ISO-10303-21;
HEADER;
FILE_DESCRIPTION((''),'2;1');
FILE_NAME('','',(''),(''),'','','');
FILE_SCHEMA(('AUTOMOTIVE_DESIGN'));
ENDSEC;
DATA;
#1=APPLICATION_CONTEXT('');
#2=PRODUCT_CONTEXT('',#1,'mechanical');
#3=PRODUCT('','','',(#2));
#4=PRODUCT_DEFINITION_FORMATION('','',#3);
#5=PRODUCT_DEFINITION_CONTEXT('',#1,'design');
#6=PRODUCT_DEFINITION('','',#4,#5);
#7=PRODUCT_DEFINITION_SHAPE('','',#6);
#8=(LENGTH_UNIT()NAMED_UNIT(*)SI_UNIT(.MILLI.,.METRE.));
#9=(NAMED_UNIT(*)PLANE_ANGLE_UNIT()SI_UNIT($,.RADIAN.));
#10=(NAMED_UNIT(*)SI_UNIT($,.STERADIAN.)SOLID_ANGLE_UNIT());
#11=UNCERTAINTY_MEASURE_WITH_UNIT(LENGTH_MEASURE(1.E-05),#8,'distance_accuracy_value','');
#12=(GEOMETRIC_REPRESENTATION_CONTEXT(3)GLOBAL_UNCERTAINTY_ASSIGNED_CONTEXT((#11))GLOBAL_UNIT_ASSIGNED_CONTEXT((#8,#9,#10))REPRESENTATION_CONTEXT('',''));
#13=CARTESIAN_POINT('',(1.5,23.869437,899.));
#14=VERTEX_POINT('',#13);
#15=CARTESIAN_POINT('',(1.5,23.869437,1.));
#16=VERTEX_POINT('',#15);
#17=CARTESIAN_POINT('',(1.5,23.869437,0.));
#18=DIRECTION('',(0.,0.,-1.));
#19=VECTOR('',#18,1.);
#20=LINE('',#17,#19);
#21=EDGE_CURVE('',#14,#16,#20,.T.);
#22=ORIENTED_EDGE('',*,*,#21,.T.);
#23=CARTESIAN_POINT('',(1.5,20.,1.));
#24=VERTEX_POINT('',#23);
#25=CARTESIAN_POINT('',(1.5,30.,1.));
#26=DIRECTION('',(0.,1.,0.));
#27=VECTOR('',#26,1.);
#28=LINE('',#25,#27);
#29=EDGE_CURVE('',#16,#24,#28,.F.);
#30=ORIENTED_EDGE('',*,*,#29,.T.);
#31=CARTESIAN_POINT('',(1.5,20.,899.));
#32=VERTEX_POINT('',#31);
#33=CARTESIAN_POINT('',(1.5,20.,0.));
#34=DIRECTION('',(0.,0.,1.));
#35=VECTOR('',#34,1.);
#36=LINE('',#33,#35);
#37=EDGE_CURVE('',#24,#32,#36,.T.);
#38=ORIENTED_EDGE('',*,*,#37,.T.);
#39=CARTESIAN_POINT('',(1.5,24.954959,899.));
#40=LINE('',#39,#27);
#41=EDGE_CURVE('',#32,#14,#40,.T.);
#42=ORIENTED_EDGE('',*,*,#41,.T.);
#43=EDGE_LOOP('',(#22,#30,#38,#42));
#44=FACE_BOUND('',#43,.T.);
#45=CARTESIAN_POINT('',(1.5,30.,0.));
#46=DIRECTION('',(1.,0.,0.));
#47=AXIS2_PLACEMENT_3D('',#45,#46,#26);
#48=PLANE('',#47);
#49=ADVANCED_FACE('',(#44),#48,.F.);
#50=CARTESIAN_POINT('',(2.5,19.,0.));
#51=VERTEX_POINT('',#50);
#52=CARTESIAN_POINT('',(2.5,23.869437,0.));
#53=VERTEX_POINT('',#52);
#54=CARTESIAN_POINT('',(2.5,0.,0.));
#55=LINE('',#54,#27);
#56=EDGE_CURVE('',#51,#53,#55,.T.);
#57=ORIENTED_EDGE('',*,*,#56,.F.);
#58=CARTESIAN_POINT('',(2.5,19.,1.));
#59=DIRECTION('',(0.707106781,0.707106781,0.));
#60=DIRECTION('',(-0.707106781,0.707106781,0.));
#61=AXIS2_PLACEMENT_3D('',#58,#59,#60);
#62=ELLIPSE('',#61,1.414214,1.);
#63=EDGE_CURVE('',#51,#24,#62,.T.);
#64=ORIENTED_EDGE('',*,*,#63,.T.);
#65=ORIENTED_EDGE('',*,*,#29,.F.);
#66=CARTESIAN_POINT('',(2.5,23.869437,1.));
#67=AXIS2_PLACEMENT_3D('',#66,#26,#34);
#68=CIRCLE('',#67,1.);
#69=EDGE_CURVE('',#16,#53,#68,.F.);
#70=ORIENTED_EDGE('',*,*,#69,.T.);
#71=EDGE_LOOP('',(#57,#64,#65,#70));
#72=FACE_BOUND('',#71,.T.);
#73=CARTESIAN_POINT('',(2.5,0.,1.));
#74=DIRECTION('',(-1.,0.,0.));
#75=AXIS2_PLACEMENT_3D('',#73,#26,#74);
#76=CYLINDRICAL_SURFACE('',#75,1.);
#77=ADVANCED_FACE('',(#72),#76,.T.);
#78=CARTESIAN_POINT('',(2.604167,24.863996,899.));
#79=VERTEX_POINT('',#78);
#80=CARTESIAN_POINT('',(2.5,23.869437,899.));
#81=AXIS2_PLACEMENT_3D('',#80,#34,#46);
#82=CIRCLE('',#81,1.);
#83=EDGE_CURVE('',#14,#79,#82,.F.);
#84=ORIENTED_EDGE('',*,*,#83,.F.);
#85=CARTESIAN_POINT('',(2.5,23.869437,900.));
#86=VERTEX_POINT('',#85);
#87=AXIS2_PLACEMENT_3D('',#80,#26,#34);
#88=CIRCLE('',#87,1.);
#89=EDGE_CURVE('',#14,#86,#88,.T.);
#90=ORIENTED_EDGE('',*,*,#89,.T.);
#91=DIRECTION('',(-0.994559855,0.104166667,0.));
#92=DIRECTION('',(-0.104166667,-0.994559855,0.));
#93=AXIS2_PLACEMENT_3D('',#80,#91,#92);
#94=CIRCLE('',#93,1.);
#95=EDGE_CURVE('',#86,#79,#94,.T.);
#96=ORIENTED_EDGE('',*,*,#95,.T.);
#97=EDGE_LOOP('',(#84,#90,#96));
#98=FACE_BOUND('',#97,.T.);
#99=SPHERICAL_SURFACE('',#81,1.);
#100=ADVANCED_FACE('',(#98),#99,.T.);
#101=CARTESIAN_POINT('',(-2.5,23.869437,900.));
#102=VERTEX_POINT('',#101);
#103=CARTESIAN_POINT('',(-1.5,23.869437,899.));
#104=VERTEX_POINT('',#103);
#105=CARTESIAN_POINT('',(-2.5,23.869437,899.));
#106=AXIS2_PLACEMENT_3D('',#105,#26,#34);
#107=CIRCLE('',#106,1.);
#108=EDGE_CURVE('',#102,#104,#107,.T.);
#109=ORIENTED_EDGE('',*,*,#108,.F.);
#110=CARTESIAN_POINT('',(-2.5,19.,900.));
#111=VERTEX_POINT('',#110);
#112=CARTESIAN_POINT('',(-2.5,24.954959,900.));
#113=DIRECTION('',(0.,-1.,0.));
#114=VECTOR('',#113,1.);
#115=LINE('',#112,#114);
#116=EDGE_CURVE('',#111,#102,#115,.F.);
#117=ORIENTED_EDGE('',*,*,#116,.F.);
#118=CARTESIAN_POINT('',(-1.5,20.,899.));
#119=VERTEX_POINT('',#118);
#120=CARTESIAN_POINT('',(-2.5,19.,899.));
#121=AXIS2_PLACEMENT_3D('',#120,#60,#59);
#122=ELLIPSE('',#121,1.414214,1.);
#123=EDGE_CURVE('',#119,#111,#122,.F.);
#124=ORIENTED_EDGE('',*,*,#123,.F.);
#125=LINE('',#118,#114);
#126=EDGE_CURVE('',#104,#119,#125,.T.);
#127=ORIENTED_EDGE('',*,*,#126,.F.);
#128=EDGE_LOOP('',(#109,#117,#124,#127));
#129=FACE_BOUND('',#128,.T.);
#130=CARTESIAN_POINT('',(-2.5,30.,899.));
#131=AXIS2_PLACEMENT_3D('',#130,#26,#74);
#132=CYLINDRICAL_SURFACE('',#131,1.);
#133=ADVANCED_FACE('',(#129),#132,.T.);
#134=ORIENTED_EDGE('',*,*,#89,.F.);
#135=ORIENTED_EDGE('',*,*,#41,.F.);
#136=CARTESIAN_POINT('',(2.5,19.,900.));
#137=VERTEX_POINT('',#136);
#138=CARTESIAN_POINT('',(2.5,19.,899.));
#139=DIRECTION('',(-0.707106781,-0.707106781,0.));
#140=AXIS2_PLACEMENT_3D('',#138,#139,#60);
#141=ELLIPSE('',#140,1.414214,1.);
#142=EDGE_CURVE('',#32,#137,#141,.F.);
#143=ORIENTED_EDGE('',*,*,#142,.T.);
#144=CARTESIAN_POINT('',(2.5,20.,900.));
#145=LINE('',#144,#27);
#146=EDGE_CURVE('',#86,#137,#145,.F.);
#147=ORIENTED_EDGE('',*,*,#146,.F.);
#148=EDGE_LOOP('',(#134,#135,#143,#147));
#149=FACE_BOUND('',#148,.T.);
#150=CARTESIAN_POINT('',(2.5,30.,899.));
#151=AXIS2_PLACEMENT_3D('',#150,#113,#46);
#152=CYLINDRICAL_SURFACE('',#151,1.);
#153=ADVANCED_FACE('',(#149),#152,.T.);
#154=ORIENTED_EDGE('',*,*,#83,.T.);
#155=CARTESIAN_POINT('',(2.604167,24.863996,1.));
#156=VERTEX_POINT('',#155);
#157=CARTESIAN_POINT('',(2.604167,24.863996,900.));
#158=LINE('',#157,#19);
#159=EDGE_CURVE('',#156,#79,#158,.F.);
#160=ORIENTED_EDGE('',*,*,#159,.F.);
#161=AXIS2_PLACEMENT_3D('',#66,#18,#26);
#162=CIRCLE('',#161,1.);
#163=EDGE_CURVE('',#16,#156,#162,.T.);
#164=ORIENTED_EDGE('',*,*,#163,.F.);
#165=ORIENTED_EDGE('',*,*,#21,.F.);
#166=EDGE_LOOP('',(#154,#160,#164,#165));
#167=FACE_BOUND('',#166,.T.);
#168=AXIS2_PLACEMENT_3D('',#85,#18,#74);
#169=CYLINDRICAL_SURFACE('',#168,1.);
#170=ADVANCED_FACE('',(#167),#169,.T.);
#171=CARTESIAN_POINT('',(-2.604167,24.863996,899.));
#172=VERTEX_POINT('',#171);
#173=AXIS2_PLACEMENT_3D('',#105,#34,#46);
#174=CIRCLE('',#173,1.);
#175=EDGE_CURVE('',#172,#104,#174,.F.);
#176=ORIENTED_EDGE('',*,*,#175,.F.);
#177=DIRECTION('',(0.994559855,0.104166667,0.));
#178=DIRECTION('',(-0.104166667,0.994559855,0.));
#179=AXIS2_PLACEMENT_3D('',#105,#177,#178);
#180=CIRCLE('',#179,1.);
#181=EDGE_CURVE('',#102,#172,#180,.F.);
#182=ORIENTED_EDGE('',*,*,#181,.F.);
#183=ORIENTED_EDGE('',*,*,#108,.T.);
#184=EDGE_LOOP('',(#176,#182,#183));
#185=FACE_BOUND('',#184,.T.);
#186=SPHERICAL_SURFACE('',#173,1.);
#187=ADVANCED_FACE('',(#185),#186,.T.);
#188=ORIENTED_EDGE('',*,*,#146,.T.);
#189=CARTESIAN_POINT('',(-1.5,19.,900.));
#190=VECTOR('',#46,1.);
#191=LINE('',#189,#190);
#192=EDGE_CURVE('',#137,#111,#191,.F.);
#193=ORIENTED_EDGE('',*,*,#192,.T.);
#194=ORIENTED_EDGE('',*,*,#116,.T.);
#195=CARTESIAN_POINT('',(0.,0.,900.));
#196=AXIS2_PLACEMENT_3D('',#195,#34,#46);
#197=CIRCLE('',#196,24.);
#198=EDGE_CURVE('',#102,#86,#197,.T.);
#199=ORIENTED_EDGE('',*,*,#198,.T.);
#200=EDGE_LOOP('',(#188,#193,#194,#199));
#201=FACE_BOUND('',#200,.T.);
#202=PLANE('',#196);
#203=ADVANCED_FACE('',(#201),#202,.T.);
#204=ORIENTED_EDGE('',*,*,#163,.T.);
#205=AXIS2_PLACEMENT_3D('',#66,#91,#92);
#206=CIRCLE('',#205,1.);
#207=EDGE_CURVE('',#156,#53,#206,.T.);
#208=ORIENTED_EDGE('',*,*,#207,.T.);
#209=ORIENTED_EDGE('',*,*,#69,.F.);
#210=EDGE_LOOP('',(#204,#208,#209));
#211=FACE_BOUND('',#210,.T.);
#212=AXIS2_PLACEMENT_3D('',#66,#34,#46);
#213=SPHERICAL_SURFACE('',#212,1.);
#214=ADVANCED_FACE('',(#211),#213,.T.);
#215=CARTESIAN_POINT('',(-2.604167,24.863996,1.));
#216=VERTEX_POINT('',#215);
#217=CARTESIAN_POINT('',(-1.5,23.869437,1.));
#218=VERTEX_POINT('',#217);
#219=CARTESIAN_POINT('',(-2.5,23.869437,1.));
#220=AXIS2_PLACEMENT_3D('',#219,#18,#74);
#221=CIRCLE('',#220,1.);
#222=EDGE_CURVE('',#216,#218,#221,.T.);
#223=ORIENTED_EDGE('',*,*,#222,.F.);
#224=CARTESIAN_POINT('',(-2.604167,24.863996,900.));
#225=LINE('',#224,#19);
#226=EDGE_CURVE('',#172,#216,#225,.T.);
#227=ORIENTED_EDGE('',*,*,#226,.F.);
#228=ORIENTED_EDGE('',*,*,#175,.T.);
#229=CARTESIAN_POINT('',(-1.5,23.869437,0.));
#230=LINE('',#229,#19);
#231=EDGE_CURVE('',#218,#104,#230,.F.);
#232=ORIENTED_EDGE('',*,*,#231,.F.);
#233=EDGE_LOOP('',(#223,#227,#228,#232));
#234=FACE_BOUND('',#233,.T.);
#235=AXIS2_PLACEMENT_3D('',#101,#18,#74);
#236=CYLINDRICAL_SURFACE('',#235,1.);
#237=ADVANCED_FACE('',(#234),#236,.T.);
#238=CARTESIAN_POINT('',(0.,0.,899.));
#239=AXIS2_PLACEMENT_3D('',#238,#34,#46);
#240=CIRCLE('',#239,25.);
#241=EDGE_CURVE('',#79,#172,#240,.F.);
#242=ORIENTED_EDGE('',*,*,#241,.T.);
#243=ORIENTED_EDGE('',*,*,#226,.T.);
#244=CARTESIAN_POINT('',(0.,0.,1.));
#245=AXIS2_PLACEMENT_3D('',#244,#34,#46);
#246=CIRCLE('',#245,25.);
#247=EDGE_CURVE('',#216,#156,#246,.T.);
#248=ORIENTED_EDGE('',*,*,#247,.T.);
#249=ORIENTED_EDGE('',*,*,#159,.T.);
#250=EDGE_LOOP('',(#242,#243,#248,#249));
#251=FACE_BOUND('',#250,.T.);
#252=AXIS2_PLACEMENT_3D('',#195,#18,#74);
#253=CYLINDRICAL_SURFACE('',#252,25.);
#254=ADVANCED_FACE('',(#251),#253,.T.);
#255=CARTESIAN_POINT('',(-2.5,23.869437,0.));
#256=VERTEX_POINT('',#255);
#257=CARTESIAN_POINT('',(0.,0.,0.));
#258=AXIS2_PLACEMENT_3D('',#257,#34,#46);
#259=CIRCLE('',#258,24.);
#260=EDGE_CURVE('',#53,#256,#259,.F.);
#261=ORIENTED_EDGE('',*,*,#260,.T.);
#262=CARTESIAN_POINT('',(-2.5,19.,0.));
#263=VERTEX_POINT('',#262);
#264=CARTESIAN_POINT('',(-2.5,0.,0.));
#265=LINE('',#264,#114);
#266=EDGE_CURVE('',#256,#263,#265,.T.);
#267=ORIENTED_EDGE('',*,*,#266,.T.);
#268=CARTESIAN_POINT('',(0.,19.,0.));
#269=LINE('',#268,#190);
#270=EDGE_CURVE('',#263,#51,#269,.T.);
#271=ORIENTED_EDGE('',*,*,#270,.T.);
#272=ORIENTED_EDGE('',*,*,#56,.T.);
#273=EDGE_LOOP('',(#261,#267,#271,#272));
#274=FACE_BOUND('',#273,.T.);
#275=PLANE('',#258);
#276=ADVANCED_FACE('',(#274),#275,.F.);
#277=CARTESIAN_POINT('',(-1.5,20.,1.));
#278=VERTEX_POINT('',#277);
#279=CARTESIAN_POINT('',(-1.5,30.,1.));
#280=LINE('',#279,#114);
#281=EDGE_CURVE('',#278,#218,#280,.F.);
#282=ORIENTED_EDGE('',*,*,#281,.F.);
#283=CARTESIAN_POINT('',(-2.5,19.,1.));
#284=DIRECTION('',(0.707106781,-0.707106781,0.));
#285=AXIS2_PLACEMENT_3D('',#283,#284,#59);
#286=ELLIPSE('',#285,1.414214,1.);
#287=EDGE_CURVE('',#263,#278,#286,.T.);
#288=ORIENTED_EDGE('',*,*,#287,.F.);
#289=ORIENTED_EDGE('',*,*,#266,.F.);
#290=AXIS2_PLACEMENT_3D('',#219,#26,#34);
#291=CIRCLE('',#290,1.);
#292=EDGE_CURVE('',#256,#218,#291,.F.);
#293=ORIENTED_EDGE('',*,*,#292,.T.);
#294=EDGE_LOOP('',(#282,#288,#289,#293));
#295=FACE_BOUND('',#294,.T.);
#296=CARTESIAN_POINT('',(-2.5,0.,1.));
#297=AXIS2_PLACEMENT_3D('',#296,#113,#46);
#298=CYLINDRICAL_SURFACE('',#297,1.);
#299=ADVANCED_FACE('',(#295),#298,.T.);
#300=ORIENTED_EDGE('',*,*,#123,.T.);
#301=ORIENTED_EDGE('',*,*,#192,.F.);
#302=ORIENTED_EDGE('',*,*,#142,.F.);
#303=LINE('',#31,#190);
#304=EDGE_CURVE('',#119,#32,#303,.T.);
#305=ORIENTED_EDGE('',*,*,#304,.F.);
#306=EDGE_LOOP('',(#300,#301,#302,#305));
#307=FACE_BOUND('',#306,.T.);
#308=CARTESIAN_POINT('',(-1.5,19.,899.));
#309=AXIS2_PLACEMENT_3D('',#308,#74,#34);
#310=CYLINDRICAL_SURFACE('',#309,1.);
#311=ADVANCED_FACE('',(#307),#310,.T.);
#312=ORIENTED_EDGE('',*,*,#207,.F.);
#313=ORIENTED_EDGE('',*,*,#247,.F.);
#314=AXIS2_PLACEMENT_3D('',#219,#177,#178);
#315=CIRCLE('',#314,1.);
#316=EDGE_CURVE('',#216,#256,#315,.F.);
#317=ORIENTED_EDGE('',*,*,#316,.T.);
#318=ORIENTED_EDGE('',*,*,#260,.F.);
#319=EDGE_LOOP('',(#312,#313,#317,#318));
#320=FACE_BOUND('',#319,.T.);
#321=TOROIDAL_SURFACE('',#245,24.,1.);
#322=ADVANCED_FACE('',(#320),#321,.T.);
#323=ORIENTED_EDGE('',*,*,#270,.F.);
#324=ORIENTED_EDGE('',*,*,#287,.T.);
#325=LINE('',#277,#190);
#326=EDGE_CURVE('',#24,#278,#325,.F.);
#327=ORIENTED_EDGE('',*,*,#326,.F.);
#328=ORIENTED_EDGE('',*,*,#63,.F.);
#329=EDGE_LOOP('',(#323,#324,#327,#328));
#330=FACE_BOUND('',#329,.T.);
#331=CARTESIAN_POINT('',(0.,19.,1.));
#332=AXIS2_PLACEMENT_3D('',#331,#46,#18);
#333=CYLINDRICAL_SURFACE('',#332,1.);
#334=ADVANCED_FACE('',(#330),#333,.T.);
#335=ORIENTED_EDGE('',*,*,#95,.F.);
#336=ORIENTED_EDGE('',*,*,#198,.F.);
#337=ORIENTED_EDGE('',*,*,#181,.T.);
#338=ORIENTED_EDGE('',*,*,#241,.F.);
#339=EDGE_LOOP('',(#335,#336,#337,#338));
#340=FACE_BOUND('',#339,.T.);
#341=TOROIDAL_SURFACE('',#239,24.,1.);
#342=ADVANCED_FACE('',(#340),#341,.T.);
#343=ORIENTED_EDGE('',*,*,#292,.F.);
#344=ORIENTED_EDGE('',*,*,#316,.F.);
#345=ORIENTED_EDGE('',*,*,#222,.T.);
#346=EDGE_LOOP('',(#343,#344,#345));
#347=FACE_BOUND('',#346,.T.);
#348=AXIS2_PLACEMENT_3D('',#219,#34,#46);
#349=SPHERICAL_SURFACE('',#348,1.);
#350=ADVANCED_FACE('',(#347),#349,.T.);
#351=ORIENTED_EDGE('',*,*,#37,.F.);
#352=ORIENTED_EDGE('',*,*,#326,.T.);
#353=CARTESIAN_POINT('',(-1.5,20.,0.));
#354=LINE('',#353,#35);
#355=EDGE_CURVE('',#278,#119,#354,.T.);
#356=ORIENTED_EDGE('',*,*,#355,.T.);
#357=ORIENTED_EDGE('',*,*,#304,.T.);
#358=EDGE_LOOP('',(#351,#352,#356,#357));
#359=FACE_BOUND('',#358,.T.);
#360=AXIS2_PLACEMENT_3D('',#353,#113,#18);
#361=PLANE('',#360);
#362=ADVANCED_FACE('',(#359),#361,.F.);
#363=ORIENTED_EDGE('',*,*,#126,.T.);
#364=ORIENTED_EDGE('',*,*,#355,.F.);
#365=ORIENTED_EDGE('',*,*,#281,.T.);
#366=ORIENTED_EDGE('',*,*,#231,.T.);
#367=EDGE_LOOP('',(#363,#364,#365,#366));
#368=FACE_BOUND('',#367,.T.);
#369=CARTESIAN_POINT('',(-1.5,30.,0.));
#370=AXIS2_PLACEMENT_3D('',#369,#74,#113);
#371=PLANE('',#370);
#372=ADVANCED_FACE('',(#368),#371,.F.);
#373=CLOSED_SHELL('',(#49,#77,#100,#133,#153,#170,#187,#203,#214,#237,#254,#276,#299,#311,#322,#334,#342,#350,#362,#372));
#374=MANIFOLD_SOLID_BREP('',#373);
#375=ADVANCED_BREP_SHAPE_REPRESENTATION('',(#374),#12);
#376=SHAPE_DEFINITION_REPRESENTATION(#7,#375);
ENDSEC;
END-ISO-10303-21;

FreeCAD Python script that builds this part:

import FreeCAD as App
import Part
import Sketcher

V = App.Vector
Q = App.Units.Quantity


def edges_at(feature, points):
    """Names of the edges that pass closest to the given points."""
    edges = feature.Shape.Edges
    near = lambda p: min(range(len(edges)), key=lambda i: edges[i].distToShape(Part.Vertex(*p))[0])
    return sorted({f"Edge{near(p) + 1}" for p in points})

doc = App.newDocument("Part")
body = doc.addObject("PartDesign::Body", "Body")

sketch1 = body.newObject("Sketcher::SketchObject", "Sketch")
sketch1.AttachmentSupport = (doc.getObject("XY_Plane"), [""])
sketch1.MapMode = "FlatFace"
sketch1.addGeometry(Part.Circle(V(0, 0, 0), V(0, 0, 1), 25), False)
sketch1.addConstraint([
    Sketcher.Constraint("Coincident", 0, 3, -1, 1),
    Sketcher.Constraint("Diameter", 0, Q("50 mm")),
])
pad1 = body.newObject("PartDesign::Pad", "Pad")
pad1.Profile = sketch1
pad1.Length = 900

sketch2 = body.newObject("Sketcher::SketchObject", "Sketch001")
sketch2.AttachmentSupport = (doc.getObject("XY_Plane"), [""])
sketch2.MapMode = "FlatFace"
sketch2.AttachmentOffset = App.Placement(V(0, 0, 900), App.Rotation())
sketch2.addGeometry([
    Part.LineSegment(V(-1.5, 30, 0), V(-1.5, 20, 0)),
    Part.LineSegment(V(-1.5, 20, 0), V(1.5, 20, 0)),
    Part.LineSegment(V(1.5, 20, 0), V(1.5, 30, 0)),
    Part.LineSegment(V(1.5, 30, 0), V(-1.5, 30, 0)),
], False)
sketch2.addConstraint([
    Sketcher.Constraint("Coincident", 0, 2, 1, 1),
    Sketcher.Constraint("Coincident", 1, 2, 2, 1),
    Sketcher.Constraint("Coincident", 2, 2, 3, 1),
    Sketcher.Constraint("Coincident", 3, 2, 0, 1),
    Sketcher.Constraint("Vertical", 0),
    Sketcher.Constraint("Horizontal", 1),
    Sketcher.Constraint("Vertical", 2),
    Sketcher.Constraint("Horizontal", 3),
    Sketcher.Constraint("DistanceX", 1, 1, 1, 2, Q("3 mm")),
    Sketcher.Constraint("DistanceY", 0, 2, 0, 1, Q("10 mm")),
    Sketcher.Constraint("DistanceY", -1, 1, 0, 2, Q("20 mm")),
    Sketcher.Constraint("DistanceX", 0, 2, -1, 1, Q("1.5 mm")),
])
pocket1 = body.newObject("PartDesign::Pocket", "Pocket")
pocket1.Profile = sketch2
pocket1.Type = "ThroughAll"
pocket1.Midplane = True
doc.recompute()

fillet = body.newObject("PartDesign::Fillet", "Fillet")
fillet.Base = (pocket1, edges_at(pocket1, [
    (1.5, 22.477, 900),
    (0, 20, 0),
    (-1.5, 22.477, 900),
    (-17.139, -18.2, 0),
    (-1.5, 22.477, 0),
    (-17.139, -18.2, 900),
    (1.5, 22.477, 0),
    (1.5, 24.955, 450),
    (0, 20, 900),
    (-1.5, 24.955, 450),
]))
fillet.Radius = 1

doc.recompute()
